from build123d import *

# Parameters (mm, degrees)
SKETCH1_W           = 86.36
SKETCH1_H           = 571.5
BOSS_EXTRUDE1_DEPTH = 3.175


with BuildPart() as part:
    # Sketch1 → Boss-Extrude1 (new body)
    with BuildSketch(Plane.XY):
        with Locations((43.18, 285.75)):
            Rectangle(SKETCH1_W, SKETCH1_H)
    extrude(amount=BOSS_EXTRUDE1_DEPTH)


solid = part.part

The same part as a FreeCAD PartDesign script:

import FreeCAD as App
import Part
import Sketcher
Q = App.Units.Quantity

doc = App.newDocument("Part")
params = doc.addObject("Spreadsheet::Sheet", "Params")
for row, (alias, value) in enumerate([
    ("sketch1_width", "3.4 in"),
    ("sketch1_height", "22.5 in"),
    ("pad1_length", "0.125 in"),
], start=1):
    params.set(f"A{row}", alias)
    params.set(f"B{row}", "=" + value)
    params.setAlias(f"B{row}", alias)

body = doc.addObject("PartDesign::Body", "Body")

# Sketch on XY plane
sketch1 = doc.addObject("Sketcher::SketchObject", "Sketch")
body.addObject(sketch1)
sketch1.AttachmentSupport = (doc.XY_Plane, [""])
sketch1.MapMode = "FlatFace"
sketch1.addGeometry([
    Part.LineSegment(App.Vector(0, 571.5, 0), App.Vector(0, 0, 0)),
    Part.LineSegment(App.Vector(0, 0, 0), App.Vector(86.36, 0, 0)),
    Part.LineSegment(App.Vector(86.36, 0, 0), App.Vector(86.36, 571.5, 0)),
    Part.LineSegment(App.Vector(86.36, 571.5, 0), App.Vector(0, 571.5, 0)),
], False)
sketch1.addConstraint([
    Sketcher.Constraint("Coincident", 0, 2, 1, 1),
    Sketcher.Constraint("Coincident", 1, 2, 2, 1),
    Sketcher.Constraint("Coincident", 2, 2, 3, 1),
    Sketcher.Constraint("Coincident", 3, 2, 0, 1),
    Sketcher.Constraint("Vertical", 0),
    Sketcher.Constraint("Horizontal", 1),
    Sketcher.Constraint("Vertical", 2),
    Sketcher.Constraint("Horizontal", 3),
    Sketcher.Constraint("Coincident", 0, 2, -1, 1),
    Sketcher.Constraint("DistanceX", 1, 1, 1, 2, Q("3.4 in")),
    Sketcher.Constraint("DistanceY", 0, 2, 0, 1, Q("22.5 in")),
])
sketch1.setExpression("Constraints[9]", "Params.sketch1_width")
sketch1.setExpression("Constraints[10]", "Params.sketch1_height")
pad1 = doc.addObject("PartDesign::Pad", "Pad")
body.addObject(pad1)
pad1.Profile = sketch1
pad1.setExpression("Length", "Params.pad1_length")

doc.recompute()
